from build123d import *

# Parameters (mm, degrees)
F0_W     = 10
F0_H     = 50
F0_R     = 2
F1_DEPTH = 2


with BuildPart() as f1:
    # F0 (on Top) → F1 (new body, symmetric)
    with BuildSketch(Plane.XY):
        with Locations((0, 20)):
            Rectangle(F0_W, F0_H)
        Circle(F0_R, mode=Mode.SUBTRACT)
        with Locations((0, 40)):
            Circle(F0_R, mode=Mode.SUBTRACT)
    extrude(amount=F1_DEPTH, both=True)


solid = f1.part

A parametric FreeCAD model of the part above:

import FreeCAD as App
import Part
import Sketcher

V = App.Vector
Q = App.Units.Quantity


def add_polygon(sketch, points):
    """Adds a closed chain of lines whose ends are joined by coincident constraints."""
    first, n = sketch.GeometryCount, len(points)
    for a, b in zip(points, points[1:] + points[:1]):
        sketch.addGeometry(Part.LineSegment(App.Vector(*a, 0), App.Vector(*b, 0)), False)
    for i in range(n):
        sketch.addConstraint(Sketcher.Constraint("Coincident", first + i, 2, first + (i + 1) % n, 1))

doc = App.newDocument("Part")
params = doc.addObject("Spreadsheet::Sheet", "Params")
for row, (alias, value) in enumerate([
    ("sketch1_diameter", "4 mm"),
    ("sketch1_width", "10 mm"),
    ("sketch1_height", "50 mm"),
    ("pad1_length", "4 mm"),
], start=1):
    params.set(f"A{row}", alias)
    params.set(f"B{row}", "=" + value)
    params.setAlias(f"B{row}", alias)

body = doc.addObject("PartDesign::Body", "Body")

# Sketch on XY plane
sketch1 = doc.addObject("Sketcher::SketchObject", "Sketch")
body.addObject(sketch1)
sketch1.AttachmentSupport = (doc.XY_Plane, [""])
sketch1.MapMode = "FlatFace"
add_polygon(sketch1, [(-5, 45), (-5, -5), (5, -5), (5, 45)])  # lines 0-3
sketch1.addGeometry(Part.Circle(V(0, 0, 0), V(0, 0, 1), 2), False)  # 4
sketch1.addGeometry(Part.Circle(V(0, 40, 0), V(0, 0, 1), 2), False)  # 5
sketch1.addConstraint(Sketcher.Constraint("Vertical", 0))
sketch1.addConstraint(Sketcher.Constraint("Horizontal", 1))
sketch1.addConstraint(Sketcher.Constraint("Vertical", 2))
sketch1.addConstraint(Sketcher.Constraint("Horizontal", 3))
sketch1.addConstraint(Sketcher.Constraint("Coincident", 4, 3, -1, 1))
sketch1.addConstraint(Sketcher.Constraint("Equal", 4, 5))
sketch1.addConstraint(Sketcher.Constraint("PointOnObject", 5, 3, -2))
sketch1.addConstraint(Sketcher.Constraint("Diameter", 4, Q("4 mm")))
sketch1.addConstraint(Sketcher.Constraint("DistanceX", 1, 1, 1, 2, Q("10 mm")))
sketch1.addConstraint(Sketcher.Constraint("DistanceY", 0, 2, 0, 1, Q("50 mm")))
sketch1.addConstraint(Sketcher.Constraint("DistanceY", -1, 1, 5, 3, Q("40 mm")))
sketch1.addConstraint(Sketcher.Constraint("DistanceX", 0, 2, -1, 1, Q("5 mm")))
sketch1.addConstraint(Sketcher.Constraint("DistanceY", 0, 2, -1, 1, Q("5 mm")))
sketch1.setExpression("Constraints[11]", "Params.sketch1_diameter")
sketch1.setExpression("Constraints[12]", "Params.sketch1_width")
sketch1.setExpression("Constraints[13]", "Params.sketch1_height")
pad1 = doc.addObject("PartDesign::Pad", "Pad")
body.addObject(pad1)
pad1.Profile = sketch1
pad1.setExpression("Length", "Params.pad1_length")
pad1.Midplane = True

doc.recompute()
